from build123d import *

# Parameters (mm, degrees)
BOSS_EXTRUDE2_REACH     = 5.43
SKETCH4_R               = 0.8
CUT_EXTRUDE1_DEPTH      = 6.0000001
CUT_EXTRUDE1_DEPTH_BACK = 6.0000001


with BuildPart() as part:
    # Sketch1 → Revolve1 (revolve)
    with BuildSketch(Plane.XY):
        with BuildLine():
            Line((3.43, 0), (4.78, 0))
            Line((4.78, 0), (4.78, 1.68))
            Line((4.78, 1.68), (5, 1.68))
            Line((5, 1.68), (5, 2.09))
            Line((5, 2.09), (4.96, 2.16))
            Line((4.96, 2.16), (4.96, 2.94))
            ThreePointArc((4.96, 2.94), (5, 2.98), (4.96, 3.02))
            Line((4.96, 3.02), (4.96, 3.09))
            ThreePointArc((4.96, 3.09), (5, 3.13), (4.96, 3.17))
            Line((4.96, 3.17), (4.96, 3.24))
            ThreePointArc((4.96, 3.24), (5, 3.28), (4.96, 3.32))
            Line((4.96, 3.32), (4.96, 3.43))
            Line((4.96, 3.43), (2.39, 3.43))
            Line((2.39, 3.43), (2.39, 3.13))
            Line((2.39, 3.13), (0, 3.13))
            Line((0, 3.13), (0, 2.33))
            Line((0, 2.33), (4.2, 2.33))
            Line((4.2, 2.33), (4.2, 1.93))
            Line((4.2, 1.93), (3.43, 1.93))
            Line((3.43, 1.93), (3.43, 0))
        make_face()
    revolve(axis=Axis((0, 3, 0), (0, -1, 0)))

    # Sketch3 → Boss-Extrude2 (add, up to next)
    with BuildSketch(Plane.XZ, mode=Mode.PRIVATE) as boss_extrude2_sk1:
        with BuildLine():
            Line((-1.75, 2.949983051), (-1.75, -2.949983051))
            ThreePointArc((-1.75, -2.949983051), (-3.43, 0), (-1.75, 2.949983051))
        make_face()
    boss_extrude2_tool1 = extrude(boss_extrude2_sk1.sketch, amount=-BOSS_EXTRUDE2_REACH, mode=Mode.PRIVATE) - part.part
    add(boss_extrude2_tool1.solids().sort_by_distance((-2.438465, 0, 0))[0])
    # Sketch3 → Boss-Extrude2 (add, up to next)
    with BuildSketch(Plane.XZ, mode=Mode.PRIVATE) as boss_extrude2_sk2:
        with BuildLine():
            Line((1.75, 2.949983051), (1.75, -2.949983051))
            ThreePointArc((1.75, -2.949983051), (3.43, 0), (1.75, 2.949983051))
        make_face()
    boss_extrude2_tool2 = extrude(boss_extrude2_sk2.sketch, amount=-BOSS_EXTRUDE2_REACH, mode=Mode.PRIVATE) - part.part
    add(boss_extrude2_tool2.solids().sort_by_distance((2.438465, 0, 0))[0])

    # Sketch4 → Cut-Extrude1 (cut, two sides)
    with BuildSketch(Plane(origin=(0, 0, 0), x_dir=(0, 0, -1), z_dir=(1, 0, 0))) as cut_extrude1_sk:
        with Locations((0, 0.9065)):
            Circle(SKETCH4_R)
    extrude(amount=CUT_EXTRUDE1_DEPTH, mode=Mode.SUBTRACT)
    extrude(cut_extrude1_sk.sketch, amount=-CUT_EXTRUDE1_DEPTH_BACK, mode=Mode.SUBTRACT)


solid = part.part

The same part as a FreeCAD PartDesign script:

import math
import FreeCAD as App
import Part
import Sketcher
Q = App.Units.Quantity

doc = App.newDocument("Part")
body = doc.addObject("PartDesign::Body", "Body")

# Sketch on XY plane
sketch1 = body.newObject("Sketcher::SketchObject", "Sketch")
sketch1.AttachmentSupport = (doc.getObject("XY_Plane"), [""])
sketch1.MapMode = "FlatFace"
sketch1.addGeometry(Part.LineSegment(App.Vector(3.43, 0, 0), App.Vector(4.78, 0, 0)), False)
sketch1.addGeometry(Part.LineSegment(App.Vector(4.78, 0, 0), App.Vector(4.78, 1.68, 0)), False)
sketch1.addGeometry(Part.LineSegment(App.Vector(4.78, 1.68, 0), App.Vector(5, 1.68, 0)), False)
sketch1.addGeometry(Part.LineSegment(App.Vector(5, 1.68, 0), App.Vector(5, 2.09, 0)), False)
sketch1.addGeometry(Part.LineSegment(App.Vector(5, 2.09, 0), App.Vector(4.96, 2.16, 0)), False)
sketch1.addGeometry(Part.LineSegment(App.Vector(4.96, 2.16, 0), App.Vector(4.96, 2.94, 0)), False)
sketch1.addGeometry(Part.ArcOfCircle(Part.Circle(App.Vector(4.96, 2.98, 0), App.Vector(0, 0, 1), 0.04), math.radians(-90), math.radians(90)), False)
sketch1.addGeometry(Part.LineSegment(App.Vector(4.96, 3.02, 0), App.Vector(4.96, 3.09, 0)), False)
sketch1.addGeometry(Part.ArcOfCircle(Part.Circle(App.Vector(4.96, 3.13, 0), App.Vector(0, 0, 1), 0.04), math.radians(-90), math.radians(90)), False)
sketch1.addGeometry(Part.LineSegment(App.Vector(4.96, 3.17, 0), App.Vector(4.96, 3.24, 0)), False)
sketch1.addGeometry(Part.ArcOfCircle(Part.Circle(App.Vector(4.96, 3.28, 0), App.Vector(0, 0, 1), 0.04), math.radians(-90), math.radians(90)), False)
sketch1.addGeometry(Part.LineSegment(App.Vector(4.96, 3.32, 0), App.Vector(4.96, 3.43, 0)), False)
sketch1.addGeometry(Part.LineSegment(App.Vector(4.96, 3.43, 0), App.Vector(2.39, 3.43, 0)), False)
sketch1.addGeometry(Part.LineSegment(App.Vector(2.39, 3.43, 0), App.Vector(2.39, 3.13, 0)), False)
sketch1.addGeometry(Part.LineSegment(App.Vector(2.39, 3.13, 0), App.Vector(0, 3.13, 0)), False)
sketch1.addGeometry(Part.LineSegment(App.Vector(0, 3.13, 0), App.Vector(0, 2.33, 0)), False)
sketch1.addGeometry(Part.LineSegment(App.Vector(0, 2.33, 0), App.Vector(4.2, 2.33, 0)), False)
sketch1.addGeometry(Part.LineSegment(App.Vector(4.2, 2.33, 0), App.Vector(4.2, 1.93, 0)), False)
sketch1.addGeometry(Part.LineSegment(App.Vector(4.2, 1.93, 0), App.Vector(3.43, 1.93, 0)), False)
sketch1.addGeometry(Part.LineSegment(App.Vector(3.43, 1.93, 0), App.Vector(3.43, 0, 0)), False)
sketch1.addConstraint(Sketcher.Constraint("Coincident", 0, 2, 1, 1))
sketch1.addConstraint(Sketcher.Constraint("Coincident", 1, 2, 2, 1))
sketch1.addConstraint(Sketcher.Constraint("Coincident", 2, 2, 3, 1))
sketch1.addConstraint(Sketcher.Constraint("Coincident", 3, 2, 4, 1))
sketch1.addConstraint(Sketcher.Constraint("Coincident", 4, 2, 5, 1))
sketch1.addConstraint(Sketcher.Constraint("Coincident", 5, 2, 6, 1))
sketch1.addConstraint(Sketcher.Constraint("Coincident", 6, 2, 7, 1))
sketch1.addConstraint(Sketcher.Constraint("Coincident", 7, 2, 8, 1))
sketch1.addConstraint(Sketcher.Constraint("Coincident", 8, 2, 9, 1))
sketch1.addConstraint(Sketcher.Constraint("Coincident", 9, 2, 10, 1))
sketch1.addConstraint(Sketcher.Constraint("Coincident", 10, 2, 11, 1))
sketch1.addConstraint(Sketcher.Constraint("Coincident", 11, 2, 12, 1))
sketch1.addConstraint(Sketcher.Constraint("Coincident", 12, 2, 13, 1))
sketch1.addConstraint(Sketcher.Constraint("Coincident", 13, 2, 14, 1))
sketch1.addConstraint(Sketcher.Constraint("Coincident", 14, 2, 15, 1))
sketch1.addConstraint(Sketcher.Constraint("Coincident", 15, 2, 16, 1))
sketch1.addConstraint(Sketcher.Constraint("Coincident", 16, 2, 17, 1))
sketch1.addConstraint(Sketcher.Constraint("Coincident", 17, 2, 18, 1))
sketch1.addConstraint(Sketcher.Constraint("Coincident", 18, 2, 19, 1))
sketch1.addConstraint(Sketcher.Constraint("Coincident", 19, 2, 0, 1))
sketch1.addConstraint(Sketcher.Constraint("Horizontal", 0))
sketch1.addConstraint(Sketcher.Constraint("Vertical", 1))
sketch1.addConstraint(Sketcher.Constraint("Horizontal", 2))
sketch1.addConstraint(Sketcher.Constraint("Vertical", 3))
sketch1.addConstraint(Sketcher.Constraint("Vertical", 5))
sketch1.addConstraint(Sketcher.Constraint("Vertical", 7))
sketch1.addConstraint(Sketcher.Constraint("Vertical", 9))
sketch1.addConstraint(Sketcher.Constraint("Vertical", 11))
sketch1.addConstraint(Sketcher.Constraint("Horizontal", 12))
sketch1.addConstraint(Sketcher.Constraint("Vertical", 13))
sketch1.addConstraint(Sketcher.Constraint("Horizontal", 14))
sketch1.addConstraint(Sketcher.Constraint("Vertical", 15))
sketch1.addConstraint(Sketcher.Constraint("Horizontal", 16))
sketch1.addConstraint(Sketcher.Constraint("Vertical", 17))
sketch1.addConstraint(Sketcher.Constraint("Horizontal", 18))
sketch1.addConstraint(Sketcher.Constraint("Vertical", 19))
sketch1.addConstraint(Sketcher.Constraint("Equal", 6, 8))
sketch1.addConstraint(Sketcher.Constraint("Equal", 8, 10))
sketch1.addConstraint(Sketcher.Constraint("PointOnObject", 0, 2, -1))
sketch1.addConstraint(Sketcher.Constraint("PointOnObject", 14, 2, -2))
sketch1.addConstraint(Sketcher.Constraint("Horizontal", 8, 3, 13, 2))
sketch1.addConstraint(Sketcher.Constraint("Vertical", 6, 3, 8, 3))
sketch1.addConstraint(Sketcher.Constraint("Vertical", 8, 3, 10, 3))
sketch1.addConstraint(Sketcher.Constraint("Vertical", 10, 3, 4, 2))
sketch1.addConstraint(Sketcher.Constraint("Vertical", 5, 2, 6, 2))
sketch1.addConstraint(Sketcher.Constraint("Vertical", 7, 2, 8, 2))
sketch1.addConstraint(Sketcher.Constraint("Vertical", 9, 2, 10, 2))
sketch1.addConstraint(Sketcher.Constraint("Equal", 7, 9))
sketch1.addConstraint(Sketcher.Constraint("Radius", 6, Q("0.04 mm")))
sketch1.addConstraint(Sketcher.Constraint("DistanceX", 16, 1, 16, 2, Q("4.2 mm")))
sketch1.addConstraint(Sketcher.Constraint("DistanceY", 13, 2, 13, 1, Q("0.3 mm")))
sketch1.addConstraint(Sketcher.Constraint("DistanceY", 15, 2, 15, 1, Q("0.8 mm")))
sketch1.addConstraint(Sketcher.Constraint("DistanceY", 17, 2, 17, 1, Q("0.4 mm")))
sketch1.addConstraint(Sketcher.Constraint("DistanceX", -1, 1, 2, 2, Q("5 mm")))
sketch1.addConstraint(Sketcher.Constraint("DistanceX", 0, 1, 0, 2, Q("1.35 mm")))
sketch1.addConstraint(Sketcher.Constraint("DistanceX", 2, 1, 2, 2, Q("0.22 mm")))
sketch1.addConstraint(Sketcher.Constraint("DistanceX", 12, 2, 12, 1, Q("2.57 mm")))
sketch1.addConstraint(Sketcher.Constraint("DistanceX", 14, 2, 14, 1, Q("2.39 mm")))
sketch1.addConstraint(Sketcher.Constraint("DistanceY", 1, 1, 1, 2, Q("1.68 mm")))
sketch1.addConstraint(Sketcher.Constraint("DistanceY", 3, 1, 3, 2, Q("0.41 mm")))
sketch1.addConstraint(Sketcher.Constraint("DistanceY", 5, 1, 5, 2, Q("0.78 mm")))
sketch1.addConstraint(Sketcher.Constraint("DistanceY", 7, 1, 7, 2, Q("0.07 mm")))
sketch1.addConstraint(Sketcher.Constraint("DistanceY", 19, 2, 19, 1, Q("1.93 mm")))
revolution = body.newObject("PartDesign::Revolution", "Revolution")
revolution.Profile = sketch1
revolution.ReferenceAxis = (sketch1, ["V_Axis"])
revolution.Angle = 360

# Sketch on XZ plane
sketch2 = body.newObject("Sketcher::SketchObject", "Sketch001")
sketch2.AttachmentSupport = (doc.getObject("XZ_Plane"), [""])
sketch2.MapMode = "FlatFace"
sketch2.addGeometry(Part.LineSegment(App.Vector(-1.8, -2.9, 0), App.Vector(-1.8, 2.9, 0)), False)
sketch2.addGeometry(Part.ArcOfCircle(Part.Circle(App.Vector(0, 0, 0), App.Vector(0, 0, 1), 3.4), math.radians(121), math.radians(239)), False)
sketch2.addConstraint(Sketcher.Constraint("Coincident", 0, 1, 1, 2))
sketch2.addConstraint(Sketcher.Constraint("Coincident", 1, 1, 0, 2))
sketch2.addConstraint(Sketcher.Constraint("Vertical", 0))
sketch2.addConstraint(Sketcher.Constraint("Coincident", 1, 3, -1, 1))
sketch2.addConstraint(Sketcher.Constraint("Radius", 1, Q("3.43 mm")))
sketch2.addConstraint(Sketcher.Constraint("DistanceX", 0, 1, -1, 1, Q("1.75 mm")))
pad1 = body.newObject("PartDesign::Pad", "Pad")
pad1.Profile = sketch2
pad1.Type = "UpToFirst"
pad1.Reversed = True

# Sketch on XZ plane
sketch3 = body.newObject("Sketcher::SketchObject", "Sketch002")
sketch3.AttachmentSupport = (doc.getObject("XZ_Plane"), [""])
sketch3.MapMode = "FlatFace"
sketch3.addGeometry(Part.LineSegment(App.Vector(1.8, 2.9, 0), App.Vector(1.8, -2.9, 0)), False)
sketch3.addGeometry(Part.ArcOfCircle(Part.Circle(App.Vector(0, 0, 0), App.Vector(0, 0, 1), 3.4), math.radians(-59), math.radians(59)), False)
sketch3.addConstraint(Sketcher.Constraint("Coincident", 0, 1, 1, 2))
sketch3.addConstraint(Sketcher.Constraint("Coincident", 1, 1, 0, 2))
sketch3.addConstraint(Sketcher.Constraint("Vertical", 0))
sketch3.addConstraint(Sketcher.Constraint("Coincident", 1, 3, -1, 1))
sketch3.addConstraint(Sketcher.Constraint("Radius", 1, Q("3.43 mm")))
sketch3.addConstraint(Sketcher.Constraint("DistanceX", -1, 1, 0, 1, Q("1.75 mm")))
pad2 = body.newObject("PartDesign::Pad", "Pad001")
pad2.Profile = sketch3
pad2.Type = "UpToFirst"
pad2.Reversed = True

# Sketch on YZ plane
sketch4 = body.newObject("Sketcher::SketchObject", "Sketch003")
sketch4.AttachmentSupport = (doc.getObject("YZ_Plane"), [""])
sketch4.MapMode = "FlatFace"
sketch4.addGeometry(Part.Circle(App.Vector(0.9, 0, 0), App.Vector(0, 0, 1), 0.8), False)
sketch4.addConstraint(Sketcher.Constraint("PointOnObject", 0, 3, -1))
sketch4.addConstraint(Sketcher.Constraint("Diameter", 0, Q("1.6 mm")))
sketch4.addConstraint(Sketcher.Constraint("DistanceX", -1, 1, 0, 3, Q("0.9065 mm")))
pocket1 = body.newObject("PartDesign::Pocket", "Pocket")
pocket1.Profile = sketch4
pocket1.Type = "ThroughAll"
pocket1.Midplane = True

doc.recompute()
